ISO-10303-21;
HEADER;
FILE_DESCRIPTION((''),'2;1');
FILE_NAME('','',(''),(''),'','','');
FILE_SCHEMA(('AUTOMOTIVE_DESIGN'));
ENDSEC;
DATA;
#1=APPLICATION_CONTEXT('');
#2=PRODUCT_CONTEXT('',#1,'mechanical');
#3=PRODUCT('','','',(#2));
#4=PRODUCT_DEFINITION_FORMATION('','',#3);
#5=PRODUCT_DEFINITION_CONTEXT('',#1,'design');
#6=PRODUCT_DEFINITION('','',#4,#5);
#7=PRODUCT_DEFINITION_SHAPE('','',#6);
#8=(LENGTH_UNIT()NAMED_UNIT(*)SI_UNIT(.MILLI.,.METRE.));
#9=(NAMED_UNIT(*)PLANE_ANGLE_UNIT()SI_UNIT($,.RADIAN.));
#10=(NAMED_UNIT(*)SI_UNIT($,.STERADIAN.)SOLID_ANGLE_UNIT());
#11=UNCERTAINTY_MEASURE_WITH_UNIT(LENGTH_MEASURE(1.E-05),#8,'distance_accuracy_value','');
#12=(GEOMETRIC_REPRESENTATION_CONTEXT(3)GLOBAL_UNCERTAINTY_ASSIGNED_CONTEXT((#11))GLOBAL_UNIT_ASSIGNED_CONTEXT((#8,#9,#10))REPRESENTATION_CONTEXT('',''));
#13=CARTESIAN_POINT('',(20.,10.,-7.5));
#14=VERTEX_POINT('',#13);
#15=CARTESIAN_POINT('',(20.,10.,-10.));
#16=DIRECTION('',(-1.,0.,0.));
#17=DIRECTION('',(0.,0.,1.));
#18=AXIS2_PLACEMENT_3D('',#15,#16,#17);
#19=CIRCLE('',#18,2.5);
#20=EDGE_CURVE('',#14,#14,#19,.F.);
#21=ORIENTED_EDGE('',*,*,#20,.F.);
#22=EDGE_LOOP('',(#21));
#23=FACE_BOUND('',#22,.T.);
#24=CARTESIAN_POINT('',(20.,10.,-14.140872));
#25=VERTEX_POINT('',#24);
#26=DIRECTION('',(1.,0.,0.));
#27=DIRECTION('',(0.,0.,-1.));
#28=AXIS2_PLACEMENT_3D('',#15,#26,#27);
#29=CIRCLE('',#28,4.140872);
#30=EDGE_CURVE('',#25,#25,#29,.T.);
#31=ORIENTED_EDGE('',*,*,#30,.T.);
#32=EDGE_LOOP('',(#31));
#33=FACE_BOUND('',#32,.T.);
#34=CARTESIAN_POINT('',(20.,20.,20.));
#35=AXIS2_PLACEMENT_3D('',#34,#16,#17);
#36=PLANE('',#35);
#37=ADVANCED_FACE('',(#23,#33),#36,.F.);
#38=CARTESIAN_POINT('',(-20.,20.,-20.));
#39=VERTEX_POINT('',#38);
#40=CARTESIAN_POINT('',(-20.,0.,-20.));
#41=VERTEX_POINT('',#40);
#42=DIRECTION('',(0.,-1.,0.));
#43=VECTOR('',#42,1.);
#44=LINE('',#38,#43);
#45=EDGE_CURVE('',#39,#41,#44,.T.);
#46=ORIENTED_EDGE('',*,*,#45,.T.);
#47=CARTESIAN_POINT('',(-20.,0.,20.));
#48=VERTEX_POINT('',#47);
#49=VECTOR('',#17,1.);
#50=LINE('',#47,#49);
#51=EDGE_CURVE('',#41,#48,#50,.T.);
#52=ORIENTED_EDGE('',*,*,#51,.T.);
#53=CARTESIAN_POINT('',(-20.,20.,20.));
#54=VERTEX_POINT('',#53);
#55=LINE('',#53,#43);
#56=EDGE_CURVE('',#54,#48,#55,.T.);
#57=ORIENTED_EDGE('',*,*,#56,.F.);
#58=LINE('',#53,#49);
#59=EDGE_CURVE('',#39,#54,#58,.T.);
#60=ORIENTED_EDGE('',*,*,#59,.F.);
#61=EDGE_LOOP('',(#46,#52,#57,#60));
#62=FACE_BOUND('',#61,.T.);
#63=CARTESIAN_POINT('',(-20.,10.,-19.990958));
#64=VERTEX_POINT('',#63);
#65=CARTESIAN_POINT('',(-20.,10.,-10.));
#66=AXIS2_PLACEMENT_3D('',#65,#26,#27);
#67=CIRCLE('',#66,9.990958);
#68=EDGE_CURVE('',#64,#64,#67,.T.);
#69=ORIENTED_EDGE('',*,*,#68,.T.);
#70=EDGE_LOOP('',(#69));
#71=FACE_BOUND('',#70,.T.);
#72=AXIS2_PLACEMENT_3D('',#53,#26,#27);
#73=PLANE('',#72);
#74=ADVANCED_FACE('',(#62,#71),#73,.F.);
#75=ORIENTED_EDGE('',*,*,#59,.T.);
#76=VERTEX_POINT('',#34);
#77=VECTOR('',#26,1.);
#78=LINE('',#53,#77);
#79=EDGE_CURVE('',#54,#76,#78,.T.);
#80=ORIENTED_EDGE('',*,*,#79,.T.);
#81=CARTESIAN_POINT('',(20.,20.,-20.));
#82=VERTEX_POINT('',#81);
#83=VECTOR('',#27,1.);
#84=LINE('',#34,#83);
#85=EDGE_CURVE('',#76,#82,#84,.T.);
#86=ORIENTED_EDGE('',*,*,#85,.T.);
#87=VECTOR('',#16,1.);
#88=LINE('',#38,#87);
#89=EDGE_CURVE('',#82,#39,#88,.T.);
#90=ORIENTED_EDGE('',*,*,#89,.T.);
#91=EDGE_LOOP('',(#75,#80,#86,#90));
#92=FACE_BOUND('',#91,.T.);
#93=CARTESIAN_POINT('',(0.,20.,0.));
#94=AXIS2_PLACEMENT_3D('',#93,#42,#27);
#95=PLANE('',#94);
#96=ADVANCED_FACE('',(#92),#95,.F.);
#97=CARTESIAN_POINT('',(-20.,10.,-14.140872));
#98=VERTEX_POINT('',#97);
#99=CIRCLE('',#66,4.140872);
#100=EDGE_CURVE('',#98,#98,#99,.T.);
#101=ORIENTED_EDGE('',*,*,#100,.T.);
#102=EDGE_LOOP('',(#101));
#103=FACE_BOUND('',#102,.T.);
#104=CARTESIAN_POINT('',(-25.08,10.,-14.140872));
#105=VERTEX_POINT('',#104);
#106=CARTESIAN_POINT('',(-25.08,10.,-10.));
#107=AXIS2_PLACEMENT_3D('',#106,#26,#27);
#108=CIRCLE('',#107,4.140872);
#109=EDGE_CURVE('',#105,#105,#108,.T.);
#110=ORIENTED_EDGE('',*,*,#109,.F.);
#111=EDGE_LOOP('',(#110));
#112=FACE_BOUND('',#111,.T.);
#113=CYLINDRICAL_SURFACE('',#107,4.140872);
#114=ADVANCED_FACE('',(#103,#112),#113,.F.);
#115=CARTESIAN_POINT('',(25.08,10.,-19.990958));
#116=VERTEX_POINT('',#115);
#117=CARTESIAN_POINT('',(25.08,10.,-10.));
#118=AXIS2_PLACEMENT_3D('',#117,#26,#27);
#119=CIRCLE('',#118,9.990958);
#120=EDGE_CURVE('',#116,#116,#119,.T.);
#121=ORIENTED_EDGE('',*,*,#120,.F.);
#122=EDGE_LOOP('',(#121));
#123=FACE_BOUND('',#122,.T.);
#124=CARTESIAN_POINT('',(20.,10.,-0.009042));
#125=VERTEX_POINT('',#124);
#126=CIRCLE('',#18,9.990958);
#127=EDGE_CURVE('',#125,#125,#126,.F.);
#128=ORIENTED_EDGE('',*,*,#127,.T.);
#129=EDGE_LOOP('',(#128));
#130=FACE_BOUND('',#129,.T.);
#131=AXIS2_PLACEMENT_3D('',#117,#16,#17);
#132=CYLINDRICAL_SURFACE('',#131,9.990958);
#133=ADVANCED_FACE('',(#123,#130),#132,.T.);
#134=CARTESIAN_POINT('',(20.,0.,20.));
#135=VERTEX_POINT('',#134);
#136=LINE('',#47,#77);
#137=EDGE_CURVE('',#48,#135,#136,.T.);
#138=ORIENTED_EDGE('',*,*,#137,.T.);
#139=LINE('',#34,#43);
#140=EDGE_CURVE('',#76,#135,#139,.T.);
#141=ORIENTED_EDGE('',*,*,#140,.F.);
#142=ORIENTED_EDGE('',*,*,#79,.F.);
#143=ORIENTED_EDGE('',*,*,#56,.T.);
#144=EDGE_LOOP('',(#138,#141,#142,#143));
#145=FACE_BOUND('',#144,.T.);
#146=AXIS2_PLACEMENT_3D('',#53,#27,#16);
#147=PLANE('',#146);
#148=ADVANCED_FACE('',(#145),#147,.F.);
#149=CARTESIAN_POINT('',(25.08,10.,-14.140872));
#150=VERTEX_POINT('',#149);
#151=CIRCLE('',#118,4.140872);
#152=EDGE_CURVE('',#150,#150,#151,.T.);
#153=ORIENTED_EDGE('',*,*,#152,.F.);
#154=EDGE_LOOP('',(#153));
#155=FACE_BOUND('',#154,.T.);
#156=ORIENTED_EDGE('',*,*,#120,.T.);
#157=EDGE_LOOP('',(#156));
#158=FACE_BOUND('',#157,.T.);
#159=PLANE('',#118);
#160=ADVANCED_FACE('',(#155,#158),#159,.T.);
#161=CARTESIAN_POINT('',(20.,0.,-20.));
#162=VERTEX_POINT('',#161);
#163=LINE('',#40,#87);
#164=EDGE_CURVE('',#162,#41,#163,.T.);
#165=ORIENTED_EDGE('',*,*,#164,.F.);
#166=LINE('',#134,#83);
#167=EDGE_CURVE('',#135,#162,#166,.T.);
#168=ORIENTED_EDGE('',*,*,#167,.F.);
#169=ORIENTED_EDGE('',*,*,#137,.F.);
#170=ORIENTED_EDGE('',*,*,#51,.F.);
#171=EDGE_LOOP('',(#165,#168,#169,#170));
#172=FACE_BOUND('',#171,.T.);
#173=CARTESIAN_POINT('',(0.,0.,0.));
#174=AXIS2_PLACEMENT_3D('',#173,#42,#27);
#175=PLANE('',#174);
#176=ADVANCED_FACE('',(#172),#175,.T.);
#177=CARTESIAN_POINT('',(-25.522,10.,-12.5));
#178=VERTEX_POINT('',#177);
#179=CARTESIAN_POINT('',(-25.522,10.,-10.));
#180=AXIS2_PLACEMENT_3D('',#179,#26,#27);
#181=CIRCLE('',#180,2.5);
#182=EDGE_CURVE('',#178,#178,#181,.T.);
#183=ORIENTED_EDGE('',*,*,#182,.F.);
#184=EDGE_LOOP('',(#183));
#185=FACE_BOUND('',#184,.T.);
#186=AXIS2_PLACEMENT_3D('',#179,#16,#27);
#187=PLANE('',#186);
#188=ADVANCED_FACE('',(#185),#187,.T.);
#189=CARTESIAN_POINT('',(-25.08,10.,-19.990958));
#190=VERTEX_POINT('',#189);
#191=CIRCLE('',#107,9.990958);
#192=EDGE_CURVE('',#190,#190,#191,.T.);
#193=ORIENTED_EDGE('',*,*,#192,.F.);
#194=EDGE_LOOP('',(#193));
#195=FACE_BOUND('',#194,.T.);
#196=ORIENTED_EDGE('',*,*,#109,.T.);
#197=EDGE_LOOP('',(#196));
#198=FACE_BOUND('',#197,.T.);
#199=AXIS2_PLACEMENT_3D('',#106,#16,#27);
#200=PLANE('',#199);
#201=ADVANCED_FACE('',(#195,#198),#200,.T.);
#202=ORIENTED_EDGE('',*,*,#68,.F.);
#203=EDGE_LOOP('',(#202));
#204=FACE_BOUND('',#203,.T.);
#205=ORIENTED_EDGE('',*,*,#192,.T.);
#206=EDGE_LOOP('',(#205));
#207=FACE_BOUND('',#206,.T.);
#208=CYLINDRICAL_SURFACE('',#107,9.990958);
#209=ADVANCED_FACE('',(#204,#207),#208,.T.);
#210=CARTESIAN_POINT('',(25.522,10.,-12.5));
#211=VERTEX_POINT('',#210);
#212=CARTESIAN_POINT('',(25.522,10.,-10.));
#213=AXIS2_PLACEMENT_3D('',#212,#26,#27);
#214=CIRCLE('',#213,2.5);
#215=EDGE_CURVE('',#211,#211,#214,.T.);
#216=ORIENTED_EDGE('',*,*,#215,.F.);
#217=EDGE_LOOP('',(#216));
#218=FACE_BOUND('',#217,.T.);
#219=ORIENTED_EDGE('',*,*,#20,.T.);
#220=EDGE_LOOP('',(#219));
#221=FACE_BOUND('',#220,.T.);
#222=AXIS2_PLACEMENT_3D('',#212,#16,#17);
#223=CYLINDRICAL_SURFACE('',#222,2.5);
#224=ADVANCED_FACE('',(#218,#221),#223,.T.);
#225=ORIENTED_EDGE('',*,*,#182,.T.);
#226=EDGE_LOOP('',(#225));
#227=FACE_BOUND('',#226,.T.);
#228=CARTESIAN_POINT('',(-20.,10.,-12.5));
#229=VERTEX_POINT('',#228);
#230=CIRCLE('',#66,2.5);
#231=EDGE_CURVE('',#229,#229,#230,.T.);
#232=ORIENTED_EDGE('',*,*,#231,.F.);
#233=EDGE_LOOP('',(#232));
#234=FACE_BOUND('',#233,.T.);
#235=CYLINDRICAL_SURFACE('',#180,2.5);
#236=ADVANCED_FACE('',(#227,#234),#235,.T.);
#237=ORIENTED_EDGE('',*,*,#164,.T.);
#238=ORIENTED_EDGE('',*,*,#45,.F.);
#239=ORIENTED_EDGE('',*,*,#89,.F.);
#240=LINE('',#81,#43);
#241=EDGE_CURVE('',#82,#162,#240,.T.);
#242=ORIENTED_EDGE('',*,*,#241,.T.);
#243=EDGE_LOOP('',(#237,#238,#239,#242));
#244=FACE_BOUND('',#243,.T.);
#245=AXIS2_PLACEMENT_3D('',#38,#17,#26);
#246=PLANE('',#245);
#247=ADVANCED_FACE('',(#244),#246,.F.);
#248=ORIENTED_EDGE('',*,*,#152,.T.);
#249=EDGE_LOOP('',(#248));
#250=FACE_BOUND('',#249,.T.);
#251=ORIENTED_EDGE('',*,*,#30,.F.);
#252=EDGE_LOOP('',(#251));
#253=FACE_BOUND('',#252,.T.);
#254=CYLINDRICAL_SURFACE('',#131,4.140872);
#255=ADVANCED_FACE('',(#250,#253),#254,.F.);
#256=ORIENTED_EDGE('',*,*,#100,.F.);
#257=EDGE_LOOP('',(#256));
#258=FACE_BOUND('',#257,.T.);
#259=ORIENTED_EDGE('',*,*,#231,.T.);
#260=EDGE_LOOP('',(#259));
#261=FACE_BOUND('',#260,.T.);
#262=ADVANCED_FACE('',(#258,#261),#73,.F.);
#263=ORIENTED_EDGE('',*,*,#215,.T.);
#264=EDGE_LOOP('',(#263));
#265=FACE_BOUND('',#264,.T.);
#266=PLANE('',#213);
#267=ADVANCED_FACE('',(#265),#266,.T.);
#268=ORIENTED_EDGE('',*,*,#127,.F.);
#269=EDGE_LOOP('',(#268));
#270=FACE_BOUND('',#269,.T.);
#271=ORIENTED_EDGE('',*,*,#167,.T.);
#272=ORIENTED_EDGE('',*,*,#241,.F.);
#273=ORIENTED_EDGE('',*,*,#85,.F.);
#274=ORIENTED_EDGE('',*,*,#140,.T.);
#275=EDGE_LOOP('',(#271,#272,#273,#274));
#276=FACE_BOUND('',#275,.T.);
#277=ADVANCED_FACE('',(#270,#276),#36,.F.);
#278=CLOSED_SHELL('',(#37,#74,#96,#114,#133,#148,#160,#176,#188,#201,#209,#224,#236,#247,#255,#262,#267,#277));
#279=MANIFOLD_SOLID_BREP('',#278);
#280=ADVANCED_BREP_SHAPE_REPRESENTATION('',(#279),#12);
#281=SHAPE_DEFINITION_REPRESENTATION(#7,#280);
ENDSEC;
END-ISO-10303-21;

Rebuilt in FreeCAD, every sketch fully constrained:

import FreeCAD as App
import Part
import Sketcher

V = App.Vector
Q = App.Units.Quantity


def add_polygon(sketch, points):
    """Adds a closed chain of lines whose ends are joined by coincident constraints."""
    first, n = sketch.GeometryCount, len(points)
    for a, b in zip(points, points[1:] + points[:1]):
        sketch.addGeometry(Part.LineSegment(App.Vector(*a, 0), App.Vector(*b, 0)), False)
    for i in range(n):
        sketch.addConstraint(Sketcher.Constraint("Coincident", first + i, 2, first + (i + 1) % n, 1))

doc = App.newDocument("Part")
params = doc.addObject("Spreadsheet::Sheet", "Params")
for row, (alias, value) in enumerate([
    ("sketch1_width", "40 mm"),
    ("pad1_length", "20 mm"),
    ("sketch2_diameter", "5 mm"),
    ("pad2_length", "5.522 mm"),
    ("pad3_length", "5.08 mm"),
], start=1):
    params.set(f"A{row}", alias)
    params.set(f"B{row}", "=" + value)
    params.setAlias(f"B{row}", alias)

body = doc.addObject("PartDesign::Body", "Body")

sketch1 = body.newObject("Sketcher::SketchObject", "Sketch")
sketch1.AttachmentSupport = (doc.getObject("XZ_Plane"), [""])
sketch1.MapMode = "FlatFace"
add_polygon(sketch1, [(-20, -20), (-20, 20), (20, 20), (20, -20)])
sketch1.addConstraint(Sketcher.Constraint("Vertical", 0))
sketch1.addConstraint(Sketcher.Constraint("Horizontal", 1))
sketch1.addConstraint(Sketcher.Constraint("Vertical", 2))
sketch1.addConstraint(Sketcher.Constraint("Horizontal", 3))
sketch1.addConstraint(Sketcher.Constraint("Symmetric", 0, 2, 2, 2, -1, 1))
sketch1.addConstraint(Sketcher.Constraint("Equal", 3, 0))
sketch1.addConstraint(Sketcher.Constraint("DistanceX", 1, 1, 1, 2, Q("40 mm")))
sketch1.setExpression("Constraints[10]", "Params.sketch1_width")
pad1 = body.newObject("PartDesign::Pad", "Pad")
pad1.Profile = sketch1
pad1.setExpression("Length", "Params.pad1_length")
pad1.Reversed = True

sketch2 = body.newObject("Sketcher::SketchObject", "Sketch001")
sketch2.AttachmentSupport = (doc.getObject("YZ_Plane"), [""])
sketch2.MapMode = "FlatFace"
sketch2.AttachmentOffset = App.Placement(V(0, 0, 20), App.Rotation())
sketch2.addGeometry(Part.Circle(V(10, -10, 0), V(0, 0, 1), 2.5), False)
sketch2.addConstraint(Sketcher.Constraint("Diameter", 0, Q("5 mm")))
sketch2.addConstraint(Sketcher.Constraint("DistanceX", -1, 1, 0, 3, Q("10 mm")))
sketch2.addConstraint(Sketcher.Constraint("DistanceY", 0, 3, -1, 1, Q("10 mm")))
sketch2.setExpression("Constraints[0]", "Params.sketch2_diameter")
pad2 = body.newObject("PartDesign::Pad", "Pad001")
pad2.Profile = sketch2
pad2.setExpression("Length", "Params.pad2_length")
doc.recompute()

mirrored = body.newObject("PartDesign::Mirrored", "Mirrored")
mirrored.Originals = [pad2]
mirrored.MirrorPlane = (doc.getObject("YZ_Plane"), [""])
body.Tip = mirrored

sketch3 = body.newObject("Sketcher::SketchObject", "Sketch002")
sketch3.AttachmentSupport = (doc.getObject("YZ_Plane"), [""])
sketch3.MapMode = "FlatFace"
sketch3.AttachmentOffset = App.Placement(V(0, 0, 20), App.Rotation())
sketch3.addGeometry(Part.Circle(V(10, -10, 0), V(0, 0, 1), 10), False)
sketch3.addGeometry(Part.Circle(V(10, -10, 0), V(0, 0, 1), 4.1), False)
sketch3.addConstraint(Sketcher.Constraint("Coincident", 1, 3, 0, 3))
sketch3.addConstraint(Sketcher.Constraint("DistanceX", -1, 1, 0, 3, Q("10 mm")))
sketch3.addConstraint(Sketcher.Constraint("DistanceY", 0, 3, -1, 1, Q("10 mm")))
sketch3.addConstraint(Sketcher.Constraint("Diameter", 0, Q("19.981915 mm")))
sketch3.addConstraint(Sketcher.Constraint("Diameter", 1, Q("8.281744 mm")))
pad3 = body.newObject("PartDesign::Pad", "Pad002")
pad3.Profile = sketch3
pad3.setExpression("Length", "Params.pad3_length")
doc.recompute()

mirrored2 = body.newObject("PartDesign::Mirrored", "Mirrored001")
mirrored2.Originals = [pad3]
mirrored2.MirrorPlane = (doc.getObject("YZ_Plane"), [""])
body.Tip = mirrored2

doc.recompute()
